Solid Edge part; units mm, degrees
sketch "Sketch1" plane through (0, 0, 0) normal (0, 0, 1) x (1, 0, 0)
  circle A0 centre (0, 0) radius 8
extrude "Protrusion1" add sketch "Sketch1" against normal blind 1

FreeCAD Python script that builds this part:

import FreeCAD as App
import Part
import Sketcher

V = App.Vector

doc = App.newDocument("Part")
body = doc.addObject("PartDesign::Body", "Body")

sketch1 = body.newObject("Sketcher::SketchObject", "Sketch")
sketch1.AttachmentSupport = (doc.getObject("XY_Plane"), [""])
sketch1.MapMode = "FlatFace"
sketch1.addGeometry(Part.Circle(V(0, 0, 0), V(0, 0, 1), 8), False)
sketch1.addConstraint([
    Sketcher.Constraint("Coincident", 0, 3, -1, 1),
    Sketcher.Constraint("Diameter", 0, 16.0),
])
pad1 = body.newObject("PartDesign::Pad", "Pad")
pad1.Profile = sketch1
pad1.Length = 1
pad1.Reversed = True

doc.recompute()
